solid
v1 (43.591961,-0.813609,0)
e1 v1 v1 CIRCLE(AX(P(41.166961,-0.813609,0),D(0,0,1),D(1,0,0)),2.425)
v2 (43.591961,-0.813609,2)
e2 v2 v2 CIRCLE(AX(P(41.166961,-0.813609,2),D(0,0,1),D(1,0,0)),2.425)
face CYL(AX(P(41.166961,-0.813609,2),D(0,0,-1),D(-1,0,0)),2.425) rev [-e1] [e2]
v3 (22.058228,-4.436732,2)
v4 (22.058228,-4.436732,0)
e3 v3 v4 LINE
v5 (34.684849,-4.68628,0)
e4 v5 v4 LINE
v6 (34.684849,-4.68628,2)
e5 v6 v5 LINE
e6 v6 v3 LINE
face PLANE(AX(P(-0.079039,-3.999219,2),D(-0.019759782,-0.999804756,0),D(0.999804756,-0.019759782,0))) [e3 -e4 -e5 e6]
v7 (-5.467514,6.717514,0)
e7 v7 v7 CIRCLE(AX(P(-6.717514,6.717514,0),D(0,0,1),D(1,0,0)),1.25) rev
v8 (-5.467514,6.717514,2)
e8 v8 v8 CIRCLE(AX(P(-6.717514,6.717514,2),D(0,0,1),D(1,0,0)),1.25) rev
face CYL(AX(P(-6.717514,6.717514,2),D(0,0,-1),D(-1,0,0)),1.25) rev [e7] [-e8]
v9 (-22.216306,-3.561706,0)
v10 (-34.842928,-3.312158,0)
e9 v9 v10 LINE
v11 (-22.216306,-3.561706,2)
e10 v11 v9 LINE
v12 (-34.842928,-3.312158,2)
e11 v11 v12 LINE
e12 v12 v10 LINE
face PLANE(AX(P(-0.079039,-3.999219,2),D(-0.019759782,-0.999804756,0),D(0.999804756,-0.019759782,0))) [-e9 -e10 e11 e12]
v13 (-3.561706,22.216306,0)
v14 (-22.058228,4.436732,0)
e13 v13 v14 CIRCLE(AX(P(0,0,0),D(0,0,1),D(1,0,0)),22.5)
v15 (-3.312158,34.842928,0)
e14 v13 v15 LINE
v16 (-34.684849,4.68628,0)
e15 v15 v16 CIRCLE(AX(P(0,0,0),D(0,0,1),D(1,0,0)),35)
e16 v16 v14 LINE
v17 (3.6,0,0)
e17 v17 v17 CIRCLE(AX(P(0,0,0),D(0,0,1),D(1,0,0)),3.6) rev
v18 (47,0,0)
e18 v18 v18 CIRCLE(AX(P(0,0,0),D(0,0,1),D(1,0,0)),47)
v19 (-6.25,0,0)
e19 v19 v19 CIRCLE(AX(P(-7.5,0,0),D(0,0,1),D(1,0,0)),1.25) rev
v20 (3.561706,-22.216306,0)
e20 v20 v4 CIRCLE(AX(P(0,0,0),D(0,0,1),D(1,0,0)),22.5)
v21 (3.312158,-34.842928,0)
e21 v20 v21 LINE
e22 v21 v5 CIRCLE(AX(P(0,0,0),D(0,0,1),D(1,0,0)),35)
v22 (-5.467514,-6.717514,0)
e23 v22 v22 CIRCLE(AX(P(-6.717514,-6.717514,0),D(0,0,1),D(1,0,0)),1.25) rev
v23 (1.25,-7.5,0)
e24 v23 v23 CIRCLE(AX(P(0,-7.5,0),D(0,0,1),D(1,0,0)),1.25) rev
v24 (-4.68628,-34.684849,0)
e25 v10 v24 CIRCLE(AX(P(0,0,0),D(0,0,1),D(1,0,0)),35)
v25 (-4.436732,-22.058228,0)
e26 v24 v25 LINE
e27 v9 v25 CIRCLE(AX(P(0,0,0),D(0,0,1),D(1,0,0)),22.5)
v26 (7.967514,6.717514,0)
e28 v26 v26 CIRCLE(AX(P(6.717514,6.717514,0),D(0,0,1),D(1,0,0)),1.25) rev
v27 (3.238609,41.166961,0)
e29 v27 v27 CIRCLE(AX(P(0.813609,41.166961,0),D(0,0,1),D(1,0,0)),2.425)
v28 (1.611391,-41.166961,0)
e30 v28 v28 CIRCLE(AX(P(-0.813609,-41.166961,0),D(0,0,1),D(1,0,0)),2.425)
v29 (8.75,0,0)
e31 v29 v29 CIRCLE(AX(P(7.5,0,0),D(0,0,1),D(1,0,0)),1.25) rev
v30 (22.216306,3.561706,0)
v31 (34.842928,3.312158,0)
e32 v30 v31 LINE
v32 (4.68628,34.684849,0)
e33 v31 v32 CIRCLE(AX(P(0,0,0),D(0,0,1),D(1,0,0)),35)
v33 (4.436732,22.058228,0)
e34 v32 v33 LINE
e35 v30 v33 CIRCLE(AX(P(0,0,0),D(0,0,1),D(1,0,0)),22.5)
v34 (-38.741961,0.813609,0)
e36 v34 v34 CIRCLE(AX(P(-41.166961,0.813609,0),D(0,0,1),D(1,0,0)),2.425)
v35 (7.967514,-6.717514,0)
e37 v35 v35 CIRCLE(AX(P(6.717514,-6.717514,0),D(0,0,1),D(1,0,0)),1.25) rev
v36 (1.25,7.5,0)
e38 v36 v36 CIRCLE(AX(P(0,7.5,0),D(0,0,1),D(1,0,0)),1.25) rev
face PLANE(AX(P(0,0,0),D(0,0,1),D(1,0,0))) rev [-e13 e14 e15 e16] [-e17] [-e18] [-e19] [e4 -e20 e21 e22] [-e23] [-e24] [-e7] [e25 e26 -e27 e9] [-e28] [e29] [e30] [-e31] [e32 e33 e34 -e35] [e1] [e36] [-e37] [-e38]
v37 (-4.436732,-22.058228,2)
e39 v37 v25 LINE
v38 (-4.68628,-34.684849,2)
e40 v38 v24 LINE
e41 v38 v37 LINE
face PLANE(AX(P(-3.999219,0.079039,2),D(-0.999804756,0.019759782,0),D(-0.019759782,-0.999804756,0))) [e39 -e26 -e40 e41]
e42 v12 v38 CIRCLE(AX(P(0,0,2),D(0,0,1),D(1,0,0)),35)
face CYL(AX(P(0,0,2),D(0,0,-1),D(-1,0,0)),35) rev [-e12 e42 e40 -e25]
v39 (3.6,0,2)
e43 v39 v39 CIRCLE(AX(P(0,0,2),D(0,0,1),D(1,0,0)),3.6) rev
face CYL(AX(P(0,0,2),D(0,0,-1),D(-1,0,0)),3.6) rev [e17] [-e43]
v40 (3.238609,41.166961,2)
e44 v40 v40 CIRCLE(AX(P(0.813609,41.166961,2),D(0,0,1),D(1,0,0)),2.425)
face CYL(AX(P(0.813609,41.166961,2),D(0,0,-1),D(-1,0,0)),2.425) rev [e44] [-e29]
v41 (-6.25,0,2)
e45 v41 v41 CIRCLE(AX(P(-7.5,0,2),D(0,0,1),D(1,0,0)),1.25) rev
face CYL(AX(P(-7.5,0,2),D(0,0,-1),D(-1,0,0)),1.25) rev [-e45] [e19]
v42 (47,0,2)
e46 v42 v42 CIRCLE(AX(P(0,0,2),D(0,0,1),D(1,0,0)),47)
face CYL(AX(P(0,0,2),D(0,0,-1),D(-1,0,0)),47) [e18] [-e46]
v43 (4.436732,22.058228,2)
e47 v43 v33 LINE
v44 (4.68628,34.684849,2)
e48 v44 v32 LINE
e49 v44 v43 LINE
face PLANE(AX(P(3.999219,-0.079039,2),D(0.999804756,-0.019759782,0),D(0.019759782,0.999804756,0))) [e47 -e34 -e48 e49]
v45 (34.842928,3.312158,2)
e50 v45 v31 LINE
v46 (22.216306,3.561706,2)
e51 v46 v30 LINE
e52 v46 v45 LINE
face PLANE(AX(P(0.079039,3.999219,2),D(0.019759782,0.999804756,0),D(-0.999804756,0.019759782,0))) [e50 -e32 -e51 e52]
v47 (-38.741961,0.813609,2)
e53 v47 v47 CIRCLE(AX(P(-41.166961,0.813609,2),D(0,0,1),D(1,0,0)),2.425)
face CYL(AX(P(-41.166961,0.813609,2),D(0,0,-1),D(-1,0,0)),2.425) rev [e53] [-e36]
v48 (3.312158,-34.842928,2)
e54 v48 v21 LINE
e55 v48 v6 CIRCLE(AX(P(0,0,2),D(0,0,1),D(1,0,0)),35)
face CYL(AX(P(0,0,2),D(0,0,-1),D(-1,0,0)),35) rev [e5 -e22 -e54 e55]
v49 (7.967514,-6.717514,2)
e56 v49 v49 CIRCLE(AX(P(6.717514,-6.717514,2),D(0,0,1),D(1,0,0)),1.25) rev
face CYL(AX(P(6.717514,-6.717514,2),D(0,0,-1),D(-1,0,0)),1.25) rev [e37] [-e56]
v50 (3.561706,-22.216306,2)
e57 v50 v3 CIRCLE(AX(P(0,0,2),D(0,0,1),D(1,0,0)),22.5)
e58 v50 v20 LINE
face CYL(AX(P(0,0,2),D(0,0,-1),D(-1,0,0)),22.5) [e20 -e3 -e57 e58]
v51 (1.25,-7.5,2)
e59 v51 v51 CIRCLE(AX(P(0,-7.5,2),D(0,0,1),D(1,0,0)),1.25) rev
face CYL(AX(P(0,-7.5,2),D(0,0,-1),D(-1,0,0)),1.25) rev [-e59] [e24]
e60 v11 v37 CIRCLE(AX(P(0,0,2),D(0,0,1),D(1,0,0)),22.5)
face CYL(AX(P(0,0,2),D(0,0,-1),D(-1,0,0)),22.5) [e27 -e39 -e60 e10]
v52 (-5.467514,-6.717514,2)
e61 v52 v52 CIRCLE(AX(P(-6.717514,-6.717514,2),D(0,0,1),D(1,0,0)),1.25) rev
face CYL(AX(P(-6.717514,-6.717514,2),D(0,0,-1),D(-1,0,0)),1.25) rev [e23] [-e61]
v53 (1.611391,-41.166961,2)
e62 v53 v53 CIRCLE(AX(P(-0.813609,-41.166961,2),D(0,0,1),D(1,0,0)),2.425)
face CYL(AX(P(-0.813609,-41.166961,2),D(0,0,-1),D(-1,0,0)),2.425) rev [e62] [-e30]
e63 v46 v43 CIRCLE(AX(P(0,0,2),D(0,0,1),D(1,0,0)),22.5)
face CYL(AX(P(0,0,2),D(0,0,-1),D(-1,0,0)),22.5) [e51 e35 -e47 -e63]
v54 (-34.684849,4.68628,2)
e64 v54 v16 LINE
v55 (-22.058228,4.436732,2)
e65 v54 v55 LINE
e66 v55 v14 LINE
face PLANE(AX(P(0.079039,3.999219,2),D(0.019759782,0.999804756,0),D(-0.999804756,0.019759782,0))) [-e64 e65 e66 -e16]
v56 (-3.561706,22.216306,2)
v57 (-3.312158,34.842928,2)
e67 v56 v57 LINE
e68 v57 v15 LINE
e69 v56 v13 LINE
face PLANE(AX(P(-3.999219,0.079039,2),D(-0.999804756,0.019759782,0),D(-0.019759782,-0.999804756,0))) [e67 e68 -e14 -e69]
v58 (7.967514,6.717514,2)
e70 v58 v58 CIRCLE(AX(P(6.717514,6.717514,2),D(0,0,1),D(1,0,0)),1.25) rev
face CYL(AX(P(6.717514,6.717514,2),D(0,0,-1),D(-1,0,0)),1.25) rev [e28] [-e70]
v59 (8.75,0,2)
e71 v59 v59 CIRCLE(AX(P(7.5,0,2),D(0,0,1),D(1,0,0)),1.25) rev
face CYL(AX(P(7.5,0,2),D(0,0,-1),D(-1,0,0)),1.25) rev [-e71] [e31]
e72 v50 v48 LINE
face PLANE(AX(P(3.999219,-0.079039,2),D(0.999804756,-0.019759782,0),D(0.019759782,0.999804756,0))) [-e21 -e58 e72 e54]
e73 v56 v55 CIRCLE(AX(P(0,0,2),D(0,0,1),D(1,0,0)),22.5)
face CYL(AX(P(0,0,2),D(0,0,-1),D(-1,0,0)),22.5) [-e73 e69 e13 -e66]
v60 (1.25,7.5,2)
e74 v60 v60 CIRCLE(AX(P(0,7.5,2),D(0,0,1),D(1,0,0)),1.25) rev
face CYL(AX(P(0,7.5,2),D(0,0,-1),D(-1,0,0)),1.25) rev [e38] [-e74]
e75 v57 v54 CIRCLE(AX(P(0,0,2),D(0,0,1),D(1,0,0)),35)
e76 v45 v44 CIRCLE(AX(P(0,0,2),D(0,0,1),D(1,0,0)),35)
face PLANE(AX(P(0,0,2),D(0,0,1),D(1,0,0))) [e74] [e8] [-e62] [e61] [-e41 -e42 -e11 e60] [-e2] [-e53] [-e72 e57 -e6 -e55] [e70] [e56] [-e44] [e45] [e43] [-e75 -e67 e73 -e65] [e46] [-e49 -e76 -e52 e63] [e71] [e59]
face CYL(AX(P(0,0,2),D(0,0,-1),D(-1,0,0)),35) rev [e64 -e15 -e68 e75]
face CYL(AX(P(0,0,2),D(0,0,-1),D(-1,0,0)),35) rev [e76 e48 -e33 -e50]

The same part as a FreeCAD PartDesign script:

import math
import FreeCAD as App
import Part
import Sketcher

V = App.Vector

doc = App.newDocument("Part")
body = doc.addObject("PartDesign::Body", "Body")

# Sketch on XY plane
sketch1 = body.newObject("Sketcher::SketchObject", "Sketch")
sketch1.AttachmentSupport = (doc.getObject("XY_Plane"), [""])
sketch1.MapMode = "FlatFace"
sketch1.addGeometry([
    Part.Circle(V(0, 0, 0), V(0, 0, 1), 47),  # 0
    Part.Circle(V(-0.8, -41.2, 0), V(0, 0, 1), 2.4),  # 1
    Part.ArcOfCircle(Part.Circle(V(0, 0, 0), V(0, 0, 1), 35), math.radians(5), math.radians(82)),  # 2
    Part.LineSegment(V(34.8, 3.3, 0), V(22.2, 3.6, 0)),  # 3
    Part.ArcOfCircle(Part.Circle(V(0, 0, 0), V(0, 0, 1), 22.5), math.radians(9), math.radians(79)),  # 4
    Part.LineSegment(V(4.4, 22.1, 0), V(4.7, 34.7, 0)),  # 5
    Part.ArcOfCircle(Part.Circle(V(0, 0, 0), V(0, 0, 1), 35), math.radians(95), math.radians(172)),  # 6
    Part.LineSegment(V(-3.3, 34.8, 0), V(-3.6, 22.2, 0)),  # 7
    Part.ArcOfCircle(Part.Circle(V(0, 0, 0), V(0, 0, 1), 22.5), math.radians(99), math.radians(169)),  # 8
    Part.LineSegment(V(-22.1, 4.4, 0), V(-34.7, 4.7, 0)),  # 9
    Part.ArcOfCircle(Part.Circle(V(0, 0, 0), V(0, 0, 1), 35), math.radians(-175), math.radians(-98)),  # 10
    Part.LineSegment(V(-34.8, -3.3, 0), V(-22.2, -3.6, 0)),  # 11
    Part.ArcOfCircle(Part.Circle(V(0, 0, 0), V(0, 0, 1), 22.5), math.radians(-171), math.radians(-101)),  # 12
    Part.LineSegment(V(-4.4, -22.1, 0), V(-4.7, -34.7, 0)),  # 13
    Part.ArcOfCircle(Part.Circle(V(0, 0, 0), V(0, 0, 1), 35), math.radians(-85), math.radians(-8)),  # 14
    Part.LineSegment(V(3.3, -34.8, 0), V(3.6, -22.2, 0)),  # 15
    Part.ArcOfCircle(Part.Circle(V(0, 0, 0), V(0, 0, 1), 22.5), math.radians(-81), math.radians(-11)),  # 16
    Part.LineSegment(V(22.1, -4.4, 0), V(34.7, -4.7, 0)),  # 17
    Part.Circle(V(41.2, -0.8, 0), V(0, 0, 1), 2.4),  # 18
    Part.Circle(V(-41.2, 0.8, 0), V(0, 0, 1), 2.4),  # 19
    Part.Circle(V(0.8, 41.2, 0), V(0, 0, 1), 2.4),  # 20
    Part.Circle(V(0, 7.5, 0), V(0, 0, 1), 1.2),  # 21
    Part.Circle(V(7.5, 0, 0), V(0, 0, 1), 1.2),  # 22
    Part.Circle(V(0, 0, 0), V(0, 0, 1), 3.6),  # 23
    Part.Circle(V(-6.7, 6.7, 0), V(0, 0, 1), 1.2),  # 24
    Part.Circle(V(6.7, 6.7, 0), V(0, 0, 1), 1.2),  # 25
    Part.Circle(V(-6.7, -6.7, 0), V(0, 0, 1), 1.2),  # 26
    Part.Circle(V(0, -7.5, 0), V(0, 0, 1), 1.2),  # 27
    Part.Circle(V(6.7, -6.7, 0), V(0, 0, 1), 1.2),  # 28
    Part.Circle(V(-7.5, 0, 0), V(0, 0, 1), 1.2),  # 29
], False)
sketch1.addConstraint([
    Sketcher.Constraint("Coincident", 2, 1, 3, 1),
    Sketcher.Constraint("Coincident", 3, 2, 4, 1),
    Sketcher.Constraint("Coincident", 4, 2, 5, 1),
    Sketcher.Constraint("Coincident", 5, 2, 2, 2),
    Sketcher.Constraint("Coincident", 6, 1, 7, 1),
    Sketcher.Constraint("Coincident", 7, 2, 8, 1),
    Sketcher.Constraint("Coincident", 8, 2, 9, 1),
    Sketcher.Constraint("Coincident", 9, 2, 6, 2),
    Sketcher.Constraint("Coincident", 10, 1, 11, 1),
    Sketcher.Constraint("Coincident", 11, 2, 12, 1),
    Sketcher.Constraint("Coincident", 12, 2, 13, 1),
    Sketcher.Constraint("Coincident", 13, 2, 10, 2),
    Sketcher.Constraint("Coincident", 14, 1, 15, 1),
    Sketcher.Constraint("Coincident", 15, 2, 16, 1),
    Sketcher.Constraint("Coincident", 16, 2, 17, 1),
    Sketcher.Constraint("Coincident", 17, 2, 14, 2),
    Sketcher.Constraint("Coincident", 0, 3, -1, 1),
    Sketcher.Constraint("Coincident", 2, 3, -1, 1),
    Sketcher.Constraint("Coincident", 4, 3, -1, 1),
    Sketcher.Constraint("Coincident", 6, 3, -1, 1),
    Sketcher.Constraint("Coincident", 8, 3, -1, 1),
    Sketcher.Constraint("Coincident", 10, 3, -1, 1),
    Sketcher.Constraint("Coincident", 12, 3, -1, 1),
    Sketcher.Constraint("Coincident", 14, 3, -1, 1),
    Sketcher.Constraint("Coincident", 16, 3, -1, 1),
    Sketcher.Constraint("Coincident", 23, 3, -1, 1),
    Sketcher.Constraint("Equal", 2, 6),
    Sketcher.Constraint("Equal", 4, 8),
    Sketcher.Constraint("Equal", 6, 10),
    Sketcher.Constraint("Equal", 8, 12),
    Sketcher.Constraint("Equal", 10, 14),
    Sketcher.Constraint("Equal", 12, 16),
    Sketcher.Constraint("Equal", 1, 18),
    Sketcher.Constraint("Equal", 18, 19),
    Sketcher.Constraint("Equal", 19, 20),
    Sketcher.Constraint("Equal", 21, 22),
    Sketcher.Constraint("Equal", 22, 24),
    Sketcher.Constraint("Equal", 24, 25),
    Sketcher.Constraint("Equal", 25, 26),
    Sketcher.Constraint("Equal", 26, 27),
    Sketcher.Constraint("Equal", 27, 28),
    Sketcher.Constraint("Equal", 28, 29),
    Sketcher.Constraint("Symmetric", 18, 3, 19, 3, -1, 1),
    Sketcher.Constraint("Symmetric", 1, 3, 20, 3, -1, 1),
    Sketcher.Constraint("Symmetric", 25, 3, 26, 3, -1, 1),
    Sketcher.Constraint("Symmetric", 21, 3, 27, 3, -1, 1),
    Sketcher.Constraint("Symmetric", 24, 3, 28, 3, -1, 1),
    Sketcher.Constraint("Symmetric", 22, 3, 29, 3, -1, 1),
    Sketcher.Constraint("Symmetric", 24, 3, 25, 3, -2),
    Sketcher.Constraint("PointOnObject", 21, 3, -2),
    Sketcher.Constraint("PointOnObject", 22, 3, -1),
    Sketcher.Constraint("Perpendicular", 3, 5),
    Sketcher.Constraint("Parallel", 5, 7),
    Sketcher.Constraint("Perpendicular", 7, 9),
    Sketcher.Constraint("Parallel", 9, 11),
    Sketcher.Constraint("Perpendicular", 11, 13),
    Sketcher.Constraint("Parallel", 13, 15),
    Sketcher.Constraint("Perpendicular", 15, 17),
    Sketcher.Constraint("Equal", 3, 5),
    Sketcher.Constraint("Equal", 5, 7),
    Sketcher.Constraint("Equal", 7, 9),
    Sketcher.Constraint("Equal", 9, 11),
    Sketcher.Constraint("Equal", 11, 13),
    Sketcher.Constraint("Equal", 13, 15),
    Sketcher.Constraint("Equal", 15, 17),
    Sketcher.Constraint("Diameter", 0, 94.0),
    Sketcher.Constraint("Radius", 2, 35.0),
    Sketcher.Constraint("Diameter", 21, 2.5),
    Sketcher.Constraint("Diameter", 23, 7.2),
    Sketcher.Constraint("Radius", 4, 22.5),
    Sketcher.Constraint("Diameter", 1, 4.85),
    Sketcher.Constraint("DistanceY", -1, 1, 21, 3, 7.5),
    Sketcher.Constraint("DistanceX", -1, 1, 22, 3, 7.5),
    Sketcher.Constraint("DistanceY", 4, 2, 6, 1, 12.7847),
    Sketcher.Constraint("DistanceX", 1, 3, -1, 1, 0.813609),
    Sketcher.Constraint("DistanceY", 1, 3, -1, 1, 41.166961),
    Sketcher.Constraint("DistanceX", -1, 1, 18, 3, 41.166961),
    Sketcher.Constraint("DistanceY", 18, 3, -1, 1, 0.813609),
    Sketcher.Constraint("DistanceY", -1, 1, 2, 1, 3.312158),
    Sketcher.Constraint("DistanceX", 25, 3, 3, 2, 15.498792),
    Sketcher.Constraint("DistanceY", 3, 2, 25, 3, 3.155808),
])
pad1 = body.newObject("PartDesign::Pad", "Pad")
pad1.Profile = sketch1
pad1.Length = 2

doc.recompute()
